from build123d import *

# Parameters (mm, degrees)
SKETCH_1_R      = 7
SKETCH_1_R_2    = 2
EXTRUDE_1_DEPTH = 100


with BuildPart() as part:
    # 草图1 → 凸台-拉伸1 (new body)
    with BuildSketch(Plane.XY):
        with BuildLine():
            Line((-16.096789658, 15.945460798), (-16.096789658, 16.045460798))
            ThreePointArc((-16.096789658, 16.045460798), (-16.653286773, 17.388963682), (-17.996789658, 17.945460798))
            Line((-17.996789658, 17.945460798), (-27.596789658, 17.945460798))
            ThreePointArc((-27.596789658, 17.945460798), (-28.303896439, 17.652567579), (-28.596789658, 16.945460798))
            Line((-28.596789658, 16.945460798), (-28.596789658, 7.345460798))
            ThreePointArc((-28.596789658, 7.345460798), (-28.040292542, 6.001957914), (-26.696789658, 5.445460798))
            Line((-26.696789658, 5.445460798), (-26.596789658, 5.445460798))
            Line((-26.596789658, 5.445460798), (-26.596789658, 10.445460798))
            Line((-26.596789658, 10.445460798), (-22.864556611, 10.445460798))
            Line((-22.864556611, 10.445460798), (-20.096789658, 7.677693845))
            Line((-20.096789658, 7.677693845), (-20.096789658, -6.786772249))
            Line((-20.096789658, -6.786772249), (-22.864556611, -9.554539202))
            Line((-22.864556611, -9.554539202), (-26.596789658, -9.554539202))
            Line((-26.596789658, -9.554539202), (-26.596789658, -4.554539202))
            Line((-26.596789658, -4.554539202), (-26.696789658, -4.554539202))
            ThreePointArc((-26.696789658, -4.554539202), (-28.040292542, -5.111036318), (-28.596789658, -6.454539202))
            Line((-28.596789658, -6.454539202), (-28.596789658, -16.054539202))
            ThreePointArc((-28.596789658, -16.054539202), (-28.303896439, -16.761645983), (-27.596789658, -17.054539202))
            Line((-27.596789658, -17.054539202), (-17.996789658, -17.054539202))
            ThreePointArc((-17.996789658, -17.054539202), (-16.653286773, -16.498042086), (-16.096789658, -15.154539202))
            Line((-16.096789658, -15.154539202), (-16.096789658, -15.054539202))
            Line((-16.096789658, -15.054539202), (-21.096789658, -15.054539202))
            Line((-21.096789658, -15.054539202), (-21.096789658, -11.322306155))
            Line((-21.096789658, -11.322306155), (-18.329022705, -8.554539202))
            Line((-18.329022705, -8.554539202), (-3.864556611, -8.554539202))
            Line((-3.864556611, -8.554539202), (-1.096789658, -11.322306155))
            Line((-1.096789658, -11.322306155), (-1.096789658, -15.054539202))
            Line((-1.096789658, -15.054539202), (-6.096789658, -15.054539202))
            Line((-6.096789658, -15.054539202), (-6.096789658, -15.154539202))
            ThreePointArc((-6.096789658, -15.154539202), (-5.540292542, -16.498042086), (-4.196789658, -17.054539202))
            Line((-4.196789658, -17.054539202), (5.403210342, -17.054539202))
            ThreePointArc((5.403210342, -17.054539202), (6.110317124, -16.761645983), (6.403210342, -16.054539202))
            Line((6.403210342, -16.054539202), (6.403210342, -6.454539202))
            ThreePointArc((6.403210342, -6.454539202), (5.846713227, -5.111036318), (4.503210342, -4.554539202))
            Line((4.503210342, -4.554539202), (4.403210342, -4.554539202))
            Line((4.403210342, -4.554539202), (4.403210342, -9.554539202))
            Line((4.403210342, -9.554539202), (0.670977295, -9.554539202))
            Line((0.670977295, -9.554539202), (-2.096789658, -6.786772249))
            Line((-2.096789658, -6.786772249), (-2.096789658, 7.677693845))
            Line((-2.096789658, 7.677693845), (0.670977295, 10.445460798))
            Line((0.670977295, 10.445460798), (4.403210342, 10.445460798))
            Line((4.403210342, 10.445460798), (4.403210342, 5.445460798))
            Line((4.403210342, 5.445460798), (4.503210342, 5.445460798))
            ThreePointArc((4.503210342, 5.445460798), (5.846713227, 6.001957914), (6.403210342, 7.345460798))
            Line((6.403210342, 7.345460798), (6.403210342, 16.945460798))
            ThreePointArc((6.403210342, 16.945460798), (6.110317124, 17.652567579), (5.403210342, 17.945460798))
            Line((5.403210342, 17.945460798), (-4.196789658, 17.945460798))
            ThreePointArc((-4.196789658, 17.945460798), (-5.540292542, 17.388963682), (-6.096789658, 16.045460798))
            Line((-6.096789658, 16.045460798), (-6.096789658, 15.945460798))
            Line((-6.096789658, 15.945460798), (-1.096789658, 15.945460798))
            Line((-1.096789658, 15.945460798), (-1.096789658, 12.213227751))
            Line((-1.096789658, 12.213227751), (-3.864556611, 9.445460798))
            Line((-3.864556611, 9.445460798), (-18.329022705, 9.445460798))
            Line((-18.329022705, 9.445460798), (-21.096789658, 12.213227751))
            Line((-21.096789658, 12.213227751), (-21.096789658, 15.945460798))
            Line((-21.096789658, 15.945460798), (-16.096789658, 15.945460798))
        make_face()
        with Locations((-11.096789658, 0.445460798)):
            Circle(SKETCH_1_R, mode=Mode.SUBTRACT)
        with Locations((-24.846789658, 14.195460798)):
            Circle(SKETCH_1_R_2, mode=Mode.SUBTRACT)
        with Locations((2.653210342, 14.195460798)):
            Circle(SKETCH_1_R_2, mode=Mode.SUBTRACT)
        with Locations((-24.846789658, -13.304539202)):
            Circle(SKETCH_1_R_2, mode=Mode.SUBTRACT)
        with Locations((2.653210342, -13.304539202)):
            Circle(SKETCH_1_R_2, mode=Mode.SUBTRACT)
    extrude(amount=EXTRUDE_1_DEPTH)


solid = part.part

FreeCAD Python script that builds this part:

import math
import FreeCAD as App
import Part
import Sketcher

doc = App.newDocument("Part")
body = doc.addObject("PartDesign::Body", "Body")

sketch1 = body.newObject("Sketcher::SketchObject", "Sketch")
sketch1.AttachmentSupport = (doc.getObject("XY_Plane"), [""])
sketch1.MapMode = "FlatFace"
sketch1.addGeometry([
    Part.LineSegment(App.Vector(-16.1, 15.95, 0), App.Vector(-16.1, 16.05, 0)),
    Part.ArcOfCircle(Part.Circle(App.Vector(-18, 16.05, 0), App.Vector(0, 0, 1), 1.9), math.radians(0), math.radians(90)),
    Part.LineSegment(App.Vector(-18, 17.95, 0), App.Vector(-27.6, 17.95, 0)),
    Part.ArcOfCircle(Part.Circle(App.Vector(-27.6, 16.95, 0), App.Vector(0, 0, 1), 1), math.radians(90), math.radians(180)),
    Part.LineSegment(App.Vector(-28.6, 16.95, 0), App.Vector(-28.6, 7.35, 0)),
    Part.ArcOfCircle(Part.Circle(App.Vector(-26.7, 7.35, 0), App.Vector(0, 0, 1), 1.9), math.radians(-180), math.radians(-90)),
    Part.LineSegment(App.Vector(-26.7, 5.45, 0), App.Vector(-26.6, 5.45, 0)),
    Part.LineSegment(App.Vector(-26.6, 5.45, 0), App.Vector(-26.6, 10.45, 0)),
    Part.LineSegment(App.Vector(-26.6, 10.45, 0), App.Vector(-22.86, 10.45, 0)),
    Part.LineSegment(App.Vector(-22.86, 10.45, 0), App.Vector(-20.1, 7.68, 0)),
    Part.LineSegment(App.Vector(-20.1, 7.68, 0), App.Vector(-20.1, -6.79, 0)),
    Part.LineSegment(App.Vector(-20.1, -6.79, 0), App.Vector(-22.86, -9.55, 0)),
    Part.LineSegment(App.Vector(-22.86, -9.55, 0), App.Vector(-26.6, -9.55, 0)),
    Part.LineSegment(App.Vector(-26.6, -9.55, 0), App.Vector(-26.6, -4.55, 0)),
    Part.LineSegment(App.Vector(-26.6, -4.55, 0), App.Vector(-26.7, -4.55, 0)),
    Part.ArcOfCircle(Part.Circle(App.Vector(-26.7, -6.45, 0), App.Vector(0, 0, 1), 1.9), math.radians(90), math.radians(180)),
    Part.LineSegment(App.Vector(-28.6, -6.45, 0), App.Vector(-28.6, -16.05, 0)),
    Part.ArcOfCircle(Part.Circle(App.Vector(-27.6, -16.05, 0), App.Vector(0, 0, 1), 1), math.radians(-180), math.radians(-90)),
    Part.LineSegment(App.Vector(-27.6, -17.05, 0), App.Vector(-18, -17.05, 0)),
    Part.ArcOfCircle(Part.Circle(App.Vector(-18, -15.15, 0), App.Vector(0, 0, 1), 1.9), math.radians(-90), math.radians(0)),
    Part.LineSegment(App.Vector(-16.1, -15.15, 0), App.Vector(-16.1, -15.05, 0)),
    Part.LineSegment(App.Vector(-16.1, -15.05, 0), App.Vector(-21.1, -15.05, 0)),
    Part.LineSegment(App.Vector(-21.1, -15.05, 0), App.Vector(-21.1, -11.32, 0)),
    Part.LineSegment(App.Vector(-21.1, -11.32, 0), App.Vector(-18.33, -8.55, 0)),
    Part.LineSegment(App.Vector(-18.33, -8.55, 0), App.Vector(-3.86, -8.55, 0)),
    Part.LineSegment(App.Vector(-3.86, -8.55, 0), App.Vector(-1.1, -11.32, 0)),
    Part.LineSegment(App.Vector(-1.1, -11.32, 0), App.Vector(-1.1, -15.05, 0)),
    Part.LineSegment(App.Vector(-1.1, -15.05, 0), App.Vector(-6.1, -15.05, 0)),
    Part.LineSegment(App.Vector(-6.1, -15.05, 0), App.Vector(-6.1, -15.15, 0)),
    Part.ArcOfCircle(Part.Circle(App.Vector(-4.2, -15.15, 0), App.Vector(0, 0, 1), 1.9), math.radians(-180), math.radians(-90)),
    Part.LineSegment(App.Vector(-4.2, -17.05, 0), App.Vector(5.4, -17.05, 0)),
    Part.ArcOfCircle(Part.Circle(App.Vector(5.4, -16.05, 0), App.Vector(0, 0, 1), 1), math.radians(-90), math.radians(0)),
    Part.LineSegment(App.Vector(6.4, -16.05, 0), App.Vector(6.4, -6.45, 0)),
    Part.ArcOfCircle(Part.Circle(App.Vector(4.5, -6.45, 0), App.Vector(0, 0, 1), 1.9), math.radians(0), math.radians(90)),
    Part.LineSegment(App.Vector(4.5, -4.55, 0), App.Vector(4.4, -4.55, 0)),
    Part.LineSegment(App.Vector(4.4, -4.55, 0), App.Vector(4.4, -9.55, 0)),
    Part.LineSegment(App.Vector(4.4, -9.55, 0), App.Vector(0.67, -9.55, 0)),
    Part.LineSegment(App.Vector(0.67, -9.55, 0), App.Vector(-2.1, -6.79, 0)),
    Part.LineSegment(App.Vector(-2.1, -6.79, 0), App.Vector(-2.1, 7.68, 0)),
    Part.LineSegment(App.Vector(-2.1, 7.68, 0), App.Vector(0.67, 10.45, 0)),
    Part.LineSegment(App.Vector(0.67, 10.45, 0), App.Vector(4.4, 10.45, 0)),
    Part.LineSegment(App.Vector(4.4, 10.45, 0), App.Vector(4.4, 5.45, 0)),
    Part.LineSegment(App.Vector(4.4, 5.45, 0), App.Vector(4.5, 5.45, 0)),
    Part.ArcOfCircle(Part.Circle(App.Vector(4.5, 7.35, 0), App.Vector(0, 0, 1), 1.9), math.radians(-90), math.radians(0)),
    Part.LineSegment(App.Vector(6.4, 7.35, 0), App.Vector(6.4, 16.95, 0)),
    Part.ArcOfCircle(Part.Circle(App.Vector(5.4, 16.95, 0), App.Vector(0, 0, 1), 1), math.radians(0), math.radians(90)),
    Part.LineSegment(App.Vector(5.4, 17.95, 0), App.Vector(-4.2, 17.95, 0)),
    Part.ArcOfCircle(Part.Circle(App.Vector(-4.2, 16.05, 0), App.Vector(0, 0, 1), 1.9), math.radians(90), math.radians(180)),
    Part.LineSegment(App.Vector(-6.1, 16.05, 0), App.Vector(-6.1, 15.95, 0)),
    Part.LineSegment(App.Vector(-6.1, 15.95, 0), App.Vector(-1.1, 15.95, 0)),
    Part.LineSegment(App.Vector(-1.1, 15.95, 0), App.Vector(-1.1, 12.21, 0)),
    Part.LineSegment(App.Vector(-1.1, 12.21, 0), App.Vector(-3.86, 9.45, 0)),
    Part.LineSegment(App.Vector(-3.86, 9.45, 0), App.Vector(-18.33, 9.45, 0)),
    Part.LineSegment(App.Vector(-18.33, 9.45, 0), App.Vector(-21.1, 12.21, 0)),
    Part.LineSegment(App.Vector(-21.1, 12.21, 0), App.Vector(-21.1, 15.95, 0)),
    Part.LineSegment(App.Vector(-21.1, 15.95, 0), App.Vector(-16.1, 15.95, 0)),
    Part.Circle(App.Vector(-24.85, -13.3, 0), App.Vector(0, 0, 1), 2),
    Part.Circle(App.Vector(2.65, -13.3, 0), App.Vector(0, 0, 1), 2),
    Part.Circle(App.Vector(-11.1, 0.45, 0), App.Vector(0, 0, 1), 7),
    Part.Circle(App.Vector(-24.85, 14.2, 0), App.Vector(0, 0, 1), 2),
    Part.Circle(App.Vector(2.65, 14.2, 0), App.Vector(0, 0, 1), 2),
], False)
sketch1.addConstraint([
    Sketcher.Constraint("Tangent", 0, 2, 1, 1),
    Sketcher.Constraint("Tangent", 1, 2, 2, 1),
    Sketcher.Constraint("Tangent", 2, 2, 3, 1),
    Sketcher.Constraint("Tangent", 3, 2, 4, 1),
    Sketcher.Constraint("Tangent", 4, 2, 5, 1),
    Sketcher.Constraint("Tangent", 5, 2, 6, 1),
    Sketcher.Constraint("Coincident", 6, 2, 7, 1),
    Sketcher.Constraint("Coincident", 7, 2, 8, 1),
    Sketcher.Constraint("Coincident", 8, 2, 9, 1),
    Sketcher.Constraint("Coincident", 9, 2, 10, 1),
    Sketcher.Constraint("Coincident", 10, 2, 11, 1),
    Sketcher.Constraint("Coincident", 11, 2, 12, 1),
    Sketcher.Constraint("Coincident", 12, 2, 13, 1),
    Sketcher.Constraint("Coincident", 13, 2, 14, 1),
    Sketcher.Constraint("Tangent", 14, 2, 15, 1),
    Sketcher.Constraint("Tangent", 15, 2, 16, 1),
    Sketcher.Constraint("Tangent", 16, 2, 17, 1),
    Sketcher.Constraint("Tangent", 17, 2, 18, 1),
    Sketcher.Constraint("Tangent", 18, 2, 19, 1),
    Sketcher.Constraint("Tangent", 19, 2, 20, 1),
    Sketcher.Constraint("Coincident", 20, 2, 21, 1),
    Sketcher.Constraint("Coincident", 21, 2, 22, 1),
    Sketcher.Constraint("Coincident", 22, 2, 23, 1),
    Sketcher.Constraint("Coincident", 23, 2, 24, 1),
    Sketcher.Constraint("Coincident", 24, 2, 25, 1),
    Sketcher.Constraint("Coincident", 25, 2, 26, 1),
    Sketcher.Constraint("Coincident", 26, 2, 27, 1),
    Sketcher.Constraint("Coincident", 27, 2, 28, 1),
    Sketcher.Constraint("Tangent", 28, 2, 29, 1),
    Sketcher.Constraint("Tangent", 29, 2, 30, 1),
    Sketcher.Constraint("Tangent", 30, 2, 31, 1),
    Sketcher.Constraint("Tangent", 31, 2, 32, 1),
    Sketcher.Constraint("Tangent", 32, 2, 33, 1),
    Sketcher.Constraint("Tangent", 33, 2, 34, 1),
    Sketcher.Constraint("Coincident", 34, 2, 35, 1),
    Sketcher.Constraint("Coincident", 35, 2, 36, 1),
    Sketcher.Constraint("Coincident", 36, 2, 37, 1),
    Sketcher.Constraint("Coincident", 37, 2, 38, 1),
    Sketcher.Constraint("Coincident", 38, 2, 39, 1),
    Sketcher.Constraint("Coincident", 39, 2, 40, 1),
    Sketcher.Constraint("Coincident", 40, 2, 41, 1),
    Sketcher.Constraint("Coincident", 41, 2, 42, 1),
    Sketcher.Constraint("Tangent", 42, 2, 43, 1),
    Sketcher.Constraint("Tangent", 43, 2, 44, 1),
    Sketcher.Constraint("Tangent", 44, 2, 45, 1),
    Sketcher.Constraint("Tangent", 45, 2, 46, 1),
    Sketcher.Constraint("Tangent", 46, 2, 47, 1),
    Sketcher.Constraint("Tangent", 47, 2, 48, 1),
    Sketcher.Constraint("Coincident", 48, 2, 49, 1),
    Sketcher.Constraint("Coincident", 49, 2, 50, 1),
    Sketcher.Constraint("Coincident", 50, 2, 51, 1),
    Sketcher.Constraint("Coincident", 51, 2, 52, 1),
    Sketcher.Constraint("Coincident", 52, 2, 53, 1),
    Sketcher.Constraint("Coincident", 53, 2, 54, 1),
    Sketcher.Constraint("Coincident", 54, 2, 55, 1),
    Sketcher.Constraint("Coincident", 55, 2, 0, 1),
    Sketcher.Constraint("Vertical", 0),
    Sketcher.Constraint("Horizontal", 2),
    Sketcher.Constraint("Vertical", 4),
    Sketcher.Constraint("Horizontal", 6),
    Sketcher.Constraint("Vertical", 7),
    Sketcher.Constraint("Horizontal", 8),
    Sketcher.Constraint("Vertical", 10),
    Sketcher.Constraint("Horizontal", 12),
    Sketcher.Constraint("Vertical", 13),
    Sketcher.Constraint("Horizontal", 14),
    Sketcher.Constraint("Vertical", 16),
    Sketcher.Constraint("Horizontal", 18),
    Sketcher.Constraint("Vertical", 20),
    Sketcher.Constraint("Horizontal", 21),
    Sketcher.Constraint("Vertical", 22),
    Sketcher.Constraint("Horizontal", 24),
    Sketcher.Constraint("Vertical", 26),
    Sketcher.Constraint("Horizontal", 27),
    Sketcher.Constraint("Vertical", 28),
    Sketcher.Constraint("Horizontal", 30),
    Sketcher.Constraint("Vertical", 32),
    Sketcher.Constraint("Horizontal", 34),
    Sketcher.Constraint("Vertical", 35),
    Sketcher.Constraint("Horizontal", 36),
    Sketcher.Constraint("Vertical", 38),
    Sketcher.Constraint("Horizontal", 40),
    Sketcher.Constraint("Vertical", 41),
    Sketcher.Constraint("Horizontal", 42),
    Sketcher.Constraint("Vertical", 44),
    Sketcher.Constraint("Horizontal", 46),
    Sketcher.Constraint("Vertical", 48),
    Sketcher.Constraint("Horizontal", 49),
    Sketcher.Constraint("Vertical", 50),
    Sketcher.Constraint("Horizontal", 52),
    Sketcher.Constraint("Vertical", 54),
    Sketcher.Constraint("Horizontal", 55),
    Sketcher.Constraint("Equal", 1, 5),
    Sketcher.Constraint("Equal", 5, 15),
    Sketcher.Constraint("Equal", 3, 17),
    Sketcher.Constraint("Equal", 15, 19),
    Sketcher.Constraint("Equal", 19, 29),
    Sketcher.Constraint("Equal", 17, 31),
    Sketcher.Constraint("Equal", 29, 33),
    Sketcher.Constraint("Equal", 33, 43),
    Sketcher.Constraint("Equal", 31, 45),
    Sketcher.Constraint("Equal", 43, 47),
    Sketcher.Constraint("Equal", 56, 57),
    Sketcher.Constraint("Equal", 57, 59),
    Sketcher.Constraint("Equal", 59, 60),
    Sketcher.Constraint("Perpendicular", 9, 11),
    Sketcher.Constraint("Parallel", 11, 23),
    Sketcher.Constraint("Perpendicular", 23, 25),
    Sketcher.Constraint("Parallel", 25, 37),
    Sketcher.Constraint("Perpendicular", 37, 39),
    Sketcher.Constraint("Parallel", 39, 51),
    Sketcher.Constraint("Perpendicular", 51, 53),
    Sketcher.Constraint("Horizontal", 19, 3, 29, 3),
    Sketcher.Constraint("Horizontal", 15, 3, 33, 3),
    Sketcher.Constraint("Horizontal", 5, 3, 43, 3),
    Sketcher.Constraint("Horizontal", 3, 3, 45, 3),
    Sketcher.Constraint("Horizontal", 56, 3, 57, 3),
    Sketcher.Constraint("Horizontal", 59, 3, 60, 3),
    Sketcher.Constraint("Horizontal", 22, 2, 25, 2),
    Sketcher.Constraint("Horizontal", 21, 2, 26, 2),
    Sketcher.Constraint("Horizontal", 12, 2, 35, 2),
    Sketcher.Constraint("Horizontal", 10, 2, 37, 2),
    Sketcher.Constraint("Horizontal", 9, 2, 38, 2),
    Sketcher.Constraint("Horizontal", 8, 2, 39, 2),
    Sketcher.Constraint("Horizontal", 50, 2, 53, 2),
    Sketcher.Constraint("Horizontal", 49, 2, 54, 2),
    Sketcher.Constraint("Vertical", 5, 3, 15, 3),
    Sketcher.Constraint("Vertical", 1, 3, 19, 3),
    Sketcher.Constraint("Vertical", 33, 3, 43, 3),
    Sketcher.Constraint("Vertical", 29, 3, 47, 3),
    Sketcher.Constraint("Vertical", 56, 3, 59, 3),
    Sketcher.Constraint("Vertical", 57, 3, 60, 3),
    Sketcher.Constraint("Vertical", 8, 2, 11, 2),
    Sketcher.Constraint("Vertical", 7, 2, 12, 2),
    Sketcher.Constraint("Vertical", 36, 2, 39, 2),
    Sketcher.Constraint("Vertical", 35, 2, 40, 2),
    Sketcher.Constraint("Vertical", 26, 2, 49, 2),
    Sketcher.Constraint("Vertical", 24, 2, 51, 2),
    Sketcher.Constraint("Vertical", 23, 2, 52, 2),
    Sketcher.Constraint("Equal", 21, 27),
    Sketcher.Constraint("Equal", 18, 30),
    Sketcher.Constraint("Equal", 14, 34),
    Sketcher.Constraint("Equal", 12, 36),
    Sketcher.Constraint("Equal", 42, 0),
    Sketcher.Constraint("Equal", 46, 4),
    Sketcher.Constraint("Equal", 55, 7),
    Sketcher.Constraint("Equal", 52, 10),
    Sketcher.Constraint("Equal", 7, 13),
    Sketcher.Constraint("Equal", 4, 16),
    Sketcher.Constraint("Equal", 0, 20),
    Sketcher.Constraint("Equal", 40, 22),
    Sketcher.Constraint("Equal", 26, 50),
    Sketcher.Constraint("Equal", 11, 23),
    Sketcher.Constraint("Diameter", 56, 4.0),
    Sketcher.Constraint("Diameter", 58, 14.0),
    Sketcher.Constraint("Radius", 3, 1.0),
    Sketcher.Constraint("Radius", 1, 1.9),
    Sketcher.Constraint("DistanceX", 21, 2, 21, 1, 5.0),
    Sketcher.Constraint("DistanceX", 2, 2, 2, 1, 9.6),
    Sketcher.Constraint("DistanceX", 6, 1, 6, 2, 0.1),
    Sketcher.Constraint("DistanceX", 8, 1, 8, 2, 3.732233),
    Sketcher.Constraint("DistanceX", 24, 1, 24, 2, 14.464466),
    Sketcher.Constraint("DistanceX", 1, 3, -1, 1, 17.99679),
    Sketcher.Constraint("DistanceY", -1, 1, 1, 3, 16.045461),
    Sketcher.Constraint("DistanceY", 15, 3, -1, 1, 6.454539),
    Sketcher.Constraint("DistanceX", 56, 3, -1, 1, 24.84679),
    Sketcher.Constraint("DistanceY", 56, 3, -1, 1, 13.304539),
    Sketcher.Constraint("DistanceX", -1, 1, 57, 3, 2.65321),
    Sketcher.Constraint("DistanceX", 58, 3, -1, 1, 11.09679),
    Sketcher.Constraint("DistanceY", -1, 1, 58, 3, 0.445461),
    Sketcher.Constraint("DistanceY", -1, 1, 59, 3, 14.195461),
])
pad1 = body.newObject("PartDesign::Pad", "Pad")
pad1.Profile = sketch1
pad1.Length = 100

doc.recompute()
